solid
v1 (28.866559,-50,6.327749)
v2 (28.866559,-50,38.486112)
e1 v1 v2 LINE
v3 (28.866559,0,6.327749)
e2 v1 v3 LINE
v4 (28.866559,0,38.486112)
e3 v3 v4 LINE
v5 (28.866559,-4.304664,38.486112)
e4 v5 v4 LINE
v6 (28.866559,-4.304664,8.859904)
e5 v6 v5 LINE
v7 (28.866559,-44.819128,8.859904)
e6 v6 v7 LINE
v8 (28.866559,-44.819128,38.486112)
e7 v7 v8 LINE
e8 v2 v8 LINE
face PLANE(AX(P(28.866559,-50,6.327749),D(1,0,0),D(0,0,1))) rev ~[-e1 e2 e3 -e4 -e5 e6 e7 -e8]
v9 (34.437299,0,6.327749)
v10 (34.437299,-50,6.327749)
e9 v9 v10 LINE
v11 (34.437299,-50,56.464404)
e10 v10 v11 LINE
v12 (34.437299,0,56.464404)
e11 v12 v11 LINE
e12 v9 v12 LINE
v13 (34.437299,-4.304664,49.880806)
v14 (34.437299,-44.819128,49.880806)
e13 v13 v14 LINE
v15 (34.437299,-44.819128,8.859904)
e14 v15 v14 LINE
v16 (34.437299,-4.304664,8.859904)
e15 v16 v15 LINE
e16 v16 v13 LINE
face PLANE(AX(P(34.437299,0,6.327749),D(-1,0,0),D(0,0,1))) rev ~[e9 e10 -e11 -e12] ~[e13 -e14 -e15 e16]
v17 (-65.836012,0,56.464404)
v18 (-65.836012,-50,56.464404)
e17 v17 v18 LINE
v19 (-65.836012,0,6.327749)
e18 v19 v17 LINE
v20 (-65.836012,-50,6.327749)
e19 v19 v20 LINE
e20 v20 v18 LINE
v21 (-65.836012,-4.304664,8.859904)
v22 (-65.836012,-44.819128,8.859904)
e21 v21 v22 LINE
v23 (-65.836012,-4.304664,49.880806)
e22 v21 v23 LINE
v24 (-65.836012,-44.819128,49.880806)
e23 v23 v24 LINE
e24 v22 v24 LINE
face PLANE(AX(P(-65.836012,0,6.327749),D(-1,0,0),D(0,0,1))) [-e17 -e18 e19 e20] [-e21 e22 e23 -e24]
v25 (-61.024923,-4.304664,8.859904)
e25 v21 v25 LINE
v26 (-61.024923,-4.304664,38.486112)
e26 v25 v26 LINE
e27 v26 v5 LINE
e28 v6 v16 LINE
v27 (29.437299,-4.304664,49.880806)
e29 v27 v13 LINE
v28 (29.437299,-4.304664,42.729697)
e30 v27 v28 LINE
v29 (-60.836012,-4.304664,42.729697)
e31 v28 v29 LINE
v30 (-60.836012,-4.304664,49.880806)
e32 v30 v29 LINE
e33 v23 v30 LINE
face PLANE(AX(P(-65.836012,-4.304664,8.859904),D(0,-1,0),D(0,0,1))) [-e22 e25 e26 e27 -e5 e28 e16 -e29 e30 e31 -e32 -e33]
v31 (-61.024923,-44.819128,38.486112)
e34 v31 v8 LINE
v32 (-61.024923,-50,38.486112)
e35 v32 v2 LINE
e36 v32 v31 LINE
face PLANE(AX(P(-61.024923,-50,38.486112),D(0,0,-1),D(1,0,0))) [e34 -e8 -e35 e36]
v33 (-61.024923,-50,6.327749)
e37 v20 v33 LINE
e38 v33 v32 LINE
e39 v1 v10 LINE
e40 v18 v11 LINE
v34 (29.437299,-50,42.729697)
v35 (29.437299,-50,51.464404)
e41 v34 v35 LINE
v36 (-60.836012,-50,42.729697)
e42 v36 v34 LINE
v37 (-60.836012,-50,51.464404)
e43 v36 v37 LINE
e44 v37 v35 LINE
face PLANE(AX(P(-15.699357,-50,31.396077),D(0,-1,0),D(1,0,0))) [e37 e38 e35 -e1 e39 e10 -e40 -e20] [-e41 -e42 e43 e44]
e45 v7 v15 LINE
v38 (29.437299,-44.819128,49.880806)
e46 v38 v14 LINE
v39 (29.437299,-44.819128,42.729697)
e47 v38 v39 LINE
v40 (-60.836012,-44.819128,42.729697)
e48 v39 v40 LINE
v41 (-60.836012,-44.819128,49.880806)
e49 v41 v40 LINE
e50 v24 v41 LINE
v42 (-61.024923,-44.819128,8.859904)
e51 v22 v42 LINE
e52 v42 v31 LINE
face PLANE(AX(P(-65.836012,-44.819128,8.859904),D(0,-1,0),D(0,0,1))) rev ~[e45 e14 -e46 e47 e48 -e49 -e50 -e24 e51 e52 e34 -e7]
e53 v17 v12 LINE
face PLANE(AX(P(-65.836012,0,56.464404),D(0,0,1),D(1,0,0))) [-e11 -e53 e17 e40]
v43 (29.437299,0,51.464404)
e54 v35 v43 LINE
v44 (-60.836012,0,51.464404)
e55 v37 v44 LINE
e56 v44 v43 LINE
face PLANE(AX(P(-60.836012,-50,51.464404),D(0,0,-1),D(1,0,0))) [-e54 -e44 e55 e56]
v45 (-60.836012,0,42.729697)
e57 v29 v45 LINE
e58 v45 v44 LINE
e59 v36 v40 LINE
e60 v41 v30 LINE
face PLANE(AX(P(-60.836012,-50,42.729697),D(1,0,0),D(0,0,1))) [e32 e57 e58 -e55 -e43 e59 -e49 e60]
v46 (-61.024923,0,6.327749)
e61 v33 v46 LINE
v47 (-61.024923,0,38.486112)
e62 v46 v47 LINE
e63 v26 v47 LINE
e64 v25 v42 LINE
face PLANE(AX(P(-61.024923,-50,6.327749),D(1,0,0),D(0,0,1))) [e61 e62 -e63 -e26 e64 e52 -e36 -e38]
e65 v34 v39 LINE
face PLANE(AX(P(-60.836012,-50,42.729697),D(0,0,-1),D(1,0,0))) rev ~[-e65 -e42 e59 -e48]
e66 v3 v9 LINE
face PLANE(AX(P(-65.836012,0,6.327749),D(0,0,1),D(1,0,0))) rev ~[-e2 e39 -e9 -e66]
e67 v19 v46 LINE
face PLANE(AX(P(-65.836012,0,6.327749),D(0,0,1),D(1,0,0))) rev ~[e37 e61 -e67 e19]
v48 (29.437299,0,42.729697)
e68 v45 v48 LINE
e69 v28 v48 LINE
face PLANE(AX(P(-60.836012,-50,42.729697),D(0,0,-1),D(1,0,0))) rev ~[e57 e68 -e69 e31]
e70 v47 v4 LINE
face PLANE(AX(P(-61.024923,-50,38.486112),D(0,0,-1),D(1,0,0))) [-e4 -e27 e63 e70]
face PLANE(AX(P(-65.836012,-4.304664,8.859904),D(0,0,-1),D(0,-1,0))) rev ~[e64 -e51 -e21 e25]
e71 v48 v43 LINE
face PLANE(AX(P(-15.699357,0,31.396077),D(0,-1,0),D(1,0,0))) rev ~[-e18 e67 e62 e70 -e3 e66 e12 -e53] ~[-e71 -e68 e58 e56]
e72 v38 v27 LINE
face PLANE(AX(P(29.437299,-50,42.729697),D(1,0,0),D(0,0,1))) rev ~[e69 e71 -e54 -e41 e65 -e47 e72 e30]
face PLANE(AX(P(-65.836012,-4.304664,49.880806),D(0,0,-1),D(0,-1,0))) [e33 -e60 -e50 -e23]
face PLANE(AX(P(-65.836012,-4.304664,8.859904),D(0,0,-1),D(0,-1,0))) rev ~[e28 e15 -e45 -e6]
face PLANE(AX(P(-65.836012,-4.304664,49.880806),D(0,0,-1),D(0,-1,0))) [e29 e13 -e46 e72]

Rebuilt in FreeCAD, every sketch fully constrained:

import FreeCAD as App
import Part
import Sketcher

V = App.Vector
Q = App.Units.Quantity


def add_polygon(sketch, points):
    """Adds a closed chain of lines whose ends are joined by coincident constraints."""
    first, n = sketch.GeometryCount, len(points)
    for a, b in zip(points, points[1:] + points[:1]):
        sketch.addGeometry(Part.LineSegment(App.Vector(*a, 0), App.Vector(*b, 0)), False)
    for i in range(n):
        sketch.addConstraint(Sketcher.Constraint("Coincident", first + i, 2, first + (i + 1) % n, 1))

doc = App.newDocument("Part")
body = doc.addObject("PartDesign::Body", "Body")

# Sketch on XZ plane
sketch1 = doc.addObject("Sketcher::SketchObject", "Sketch")
body.addObject(sketch1)
sketch1.AttachmentSupport = (doc.XZ_Plane, [""])
sketch1.MapMode = "FlatFace"
add_polygon(sketch1, [(-65.836012, 56.464404), (-65.836012, 6.327749), (34.437299, 6.327749), (34.437299, 56.464404)])  # lines 0-3
sketch1.addConstraint(Sketcher.Constraint("Vertical", 0))
sketch1.addConstraint(Sketcher.Constraint("Horizontal", 1))
sketch1.addConstraint(Sketcher.Constraint("Vertical", 2))
sketch1.addConstraint(Sketcher.Constraint("Horizontal", 3))
sketch1.addConstraint(Sketcher.Constraint("DistanceX", 1, 1, 1, 2, Q("100.273311 mm")))
sketch1.addConstraint(Sketcher.Constraint("DistanceX", -1, 1, 1, 2, Q("34.437299 mm")))
sketch1.addConstraint(Sketcher.Constraint("DistanceY", 0, 2, 0, 1, Q("50.136655 mm")))
sketch1.addConstraint(Sketcher.Constraint("DistanceY", -1, 1, 0, 2, Q("6.327749 mm")))
pad1 = doc.addObject("PartDesign::Pad", "Pad")
body.addObject(pad1)
pad1.Profile = sketch1
pad1.Length = 50

# Sketch on XZ plane
sketch2 = doc.addObject("Sketcher::SketchObject", "Sketch001")
body.addObject(sketch2)
sketch2.AttachmentSupport = (doc.XZ_Plane, [""])
sketch2.MapMode = "FlatFace"
sketch2.AttachmentOffset = App.Placement(V(0, 0, 50), App.Rotation())
add_polygon(sketch2, [(-60.836012, 51.464404), (-60.836012, 42.729697), (29.437299, 42.729697), (29.437299, 51.464404)])  # lines 0-3
sketch2.addConstraint(Sketcher.Constraint("Vertical", 0))
sketch2.addConstraint(Sketcher.Constraint("Horizontal", 1))
sketch2.addConstraint(Sketcher.Constraint("Vertical", 2))
sketch2.addConstraint(Sketcher.Constraint("Horizontal", 3))
sketch2.addConstraint(Sketcher.Constraint("DistanceX", 1, 1, 1, 2, Q("90.273311 mm")))
sketch2.addConstraint(Sketcher.Constraint("DistanceX", -1, 1, 1, 2, Q("29.437299 mm")))
sketch2.addConstraint(Sketcher.Constraint("DistanceY", 0, 2, 0, 1, Q("8.734707 mm")))
sketch2.addConstraint(Sketcher.Constraint("DistanceY", -1, 1, 0, 2, Q("42.729697 mm")))
pocket1 = doc.addObject("PartDesign::Pocket", "Pocket")
body.addObject(pocket1)
pocket1.Profile = sketch2
pocket1.Type = "ThroughAll"

# Sketch on YZ plane
sketch3 = doc.addObject("Sketcher::SketchObject", "Sketch002")
body.addObject(sketch3)
sketch3.AttachmentSupport = (doc.YZ_Plane, [""])
sketch3.MapMode = "FlatFace"
sketch3.AttachmentOffset = App.Placement(V(0, 0, -65.836012), App.Rotation())
add_polygon(sketch3, [(-4.304664, 49.880806), (-4.304664, 8.859904), (-44.819128, 8.859904), (-44.819128, 49.880806)])  # lines 0-3
sketch3.addConstraint(Sketcher.Constraint("Vertical", 0))
sketch3.addConstraint(Sketcher.Constraint("Horizontal", 1))
sketch3.addConstraint(Sketcher.Constraint("Vertical", 2))
sketch3.addConstraint(Sketcher.Constraint("Horizontal", 3))
sketch3.addConstraint(Sketcher.Constraint("DistanceX", 1, 2, 1, 1, Q("40.514464 mm")))
sketch3.addConstraint(Sketcher.Constraint("DistanceY", 0, 2, 0, 1, Q("41.020903 mm")))
sketch3.addConstraint(Sketcher.Constraint("DistanceX", 0, 2, -1, 1, Q("4.304664 mm")))
sketch3.addConstraint(Sketcher.Constraint("DistanceY", -1, 1, 0, 2, Q("8.859904 mm")))
pocket2 = doc.addObject("PartDesign::Pocket", "Pocket001")
body.addObject(pocket2)
pocket2.Profile = sketch3
pocket2.Type = "ThroughAll"
pocket2.Reversed = True

# Sketch on XZ plane
sketch4 = doc.addObject("Sketcher::SketchObject", "Sketch003")
body.addObject(sketch4)
sketch4.AttachmentSupport = (doc.XZ_Plane, [""])
sketch4.MapMode = "FlatFace"
sketch4.AttachmentOffset = App.Placement(V(0, 0, 50), App.Rotation())
add_polygon(sketch4, [(-61.024923, 38.486112), (-61.024923, 6.327749), (28.866559, 6.327749), (28.866559, 38.486112)])  # lines 0-3
sketch4.addConstraint(Sketcher.Constraint("Vertical", 0))
sketch4.addConstraint(Sketcher.Constraint("Horizontal", 1))
sketch4.addConstraint(Sketcher.Constraint("Vertical", 2))
sketch4.addConstraint(Sketcher.Constraint("Horizontal", 3))
sketch4.addConstraint(Sketcher.Constraint("DistanceX", 1, 1, 1, 2, Q("89.891482 mm")))
sketch4.addConstraint(Sketcher.Constraint("DistanceY", 0, 2, 0, 1, Q("32.158363 mm")))
sketch4.addConstraint(Sketcher.Constraint("DistanceY", -1, 1, 0, 2, Q("6.327749 mm")))
sketch4.addConstraint(Sketcher.Constraint("DistanceX", -1, 1, 1, 2, Q("28.866559 mm")))
pocket3 = doc.addObject("PartDesign::Pocket", "Pocket002")
body.addObject(pocket3)
pocket3.Profile = sketch4
pocket3.Type = "ThroughAll"

doc.recompute()
